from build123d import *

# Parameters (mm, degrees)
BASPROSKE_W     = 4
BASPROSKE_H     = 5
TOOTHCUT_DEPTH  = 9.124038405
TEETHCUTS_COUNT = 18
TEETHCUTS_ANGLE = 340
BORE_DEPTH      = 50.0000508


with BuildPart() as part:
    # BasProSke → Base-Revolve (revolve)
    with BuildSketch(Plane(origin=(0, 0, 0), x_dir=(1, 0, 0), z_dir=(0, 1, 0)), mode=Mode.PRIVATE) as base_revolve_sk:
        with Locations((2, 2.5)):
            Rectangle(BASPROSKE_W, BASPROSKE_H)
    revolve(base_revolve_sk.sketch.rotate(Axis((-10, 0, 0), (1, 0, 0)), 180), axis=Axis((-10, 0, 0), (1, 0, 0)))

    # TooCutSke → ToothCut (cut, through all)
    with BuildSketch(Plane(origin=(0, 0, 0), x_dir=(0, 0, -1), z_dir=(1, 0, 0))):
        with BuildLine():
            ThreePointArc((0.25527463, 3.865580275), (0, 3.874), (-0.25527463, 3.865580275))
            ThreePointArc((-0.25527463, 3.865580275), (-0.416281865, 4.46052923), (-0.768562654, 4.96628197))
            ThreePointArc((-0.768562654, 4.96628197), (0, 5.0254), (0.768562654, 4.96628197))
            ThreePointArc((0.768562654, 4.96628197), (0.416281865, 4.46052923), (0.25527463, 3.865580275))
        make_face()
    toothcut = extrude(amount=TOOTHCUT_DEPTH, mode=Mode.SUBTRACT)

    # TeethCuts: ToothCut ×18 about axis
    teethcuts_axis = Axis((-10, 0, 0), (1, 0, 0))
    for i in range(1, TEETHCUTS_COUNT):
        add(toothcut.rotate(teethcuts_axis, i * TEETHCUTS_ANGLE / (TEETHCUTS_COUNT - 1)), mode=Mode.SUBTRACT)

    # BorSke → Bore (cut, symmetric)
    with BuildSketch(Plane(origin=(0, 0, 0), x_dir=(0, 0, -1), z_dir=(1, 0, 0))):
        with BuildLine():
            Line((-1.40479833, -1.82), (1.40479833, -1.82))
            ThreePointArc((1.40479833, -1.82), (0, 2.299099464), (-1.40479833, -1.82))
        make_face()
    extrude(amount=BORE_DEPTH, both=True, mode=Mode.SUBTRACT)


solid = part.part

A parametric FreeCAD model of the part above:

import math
import FreeCAD as App
import Part
import Sketcher

V = App.Vector
Q = App.Units.Quantity

doc = App.newDocument("Part")
params = doc.addObject("Spreadsheet::Sheet", "Params")
for row, (alias, value) in enumerate([
    ("sketch1_width", "4 mm"),
    ("sketch1_height", "5 mm"),
    ("revolution_angle", "360 deg"),
    ("sketch2_radius", "1.8 mm"),
    ("pocket2_length", "100.000102 mm"),
], start=1):
    params.set(f"A{row}", alias)
    params.set(f"B{row}", "=" + value)
    params.setAlias(f"B{row}", alias)

body = doc.addObject("PartDesign::Body", "Body")

# Sketch on XZ plane
sketch1 = body.newObject("Sketcher::SketchObject", "Sketch")
sketch1.AttachmentSupport = (doc.getObject("XZ_Plane"), [""])
sketch1.MapMode = "FlatFace"
sketch1.addGeometry([
    Part.LineSegment(V(0, -5, 0), V(0, 0, 0)),
    Part.LineSegment(V(0, 0, 0), V(4, 0, 0)),
    Part.LineSegment(V(4, 0, 0), V(4, -5, 0)),
    Part.LineSegment(V(4, -5, 0), V(0, -5, 0)),
], False)
sketch1.addConstraint([
    Sketcher.Constraint("Coincident", 0, 2, 1, 1),
    Sketcher.Constraint("Coincident", 1, 2, 2, 1),
    Sketcher.Constraint("Coincident", 2, 2, 3, 1),
    Sketcher.Constraint("Coincident", 3, 2, 0, 1),
    Sketcher.Constraint("Vertical", 0),
    Sketcher.Constraint("Horizontal", 1),
    Sketcher.Constraint("Vertical", 2),
    Sketcher.Constraint("Horizontal", 3),
    Sketcher.Constraint("Coincident", 0, 2, -1, 1),
    Sketcher.Constraint("DistanceX", 1, 1, 1, 2, Q("4 mm")),
    Sketcher.Constraint("DistanceY", 0, 1, 0, 2, Q("5 mm")),
])
sketch1.setExpression("Constraints[9]", "Params.sketch1_width")
sketch1.setExpression("Constraints[10]", "Params.sketch1_height")
revolution = body.newObject("PartDesign::Revolution", "Revolution")
revolution.Profile = sketch1
revolution.ReferenceAxis = (sketch1, ["H_Axis"])
revolution.setExpression("Angle", "Params.revolution_angle")

# Sketch on YZ plane
sketch2 = body.newObject("Sketcher::SketchObject", "Sketch001")
sketch2.AttachmentSupport = (doc.getObject("YZ_Plane"), [""])
sketch2.MapMode = "FlatFace"
sketch2.addGeometry([
    Part.ArcOfCircle(Part.Circle(V(0, 0, 0), V(0, 0, 1), 3.9), math.radians(-3.78), math.radians(3.78)),
    Part.ArcOfCircle(Part.Circle(V(3.7, -2, 0), V(0, 0, 1), 1.8), math.radians(45), math.radians(85)),
    Part.ArcOfCircle(Part.Circle(V(0, 0, 0), V(0, 0, 1), 5), math.radians(-8.8), math.radians(8.8)),
    Part.ArcOfCircle(Part.Circle(V(3.7, 2, 0), V(0, 0, 1), 1.8), math.radians(-85), math.radians(-45)),
], False)
sketch2.addConstraint([
    Sketcher.Constraint("Coincident", 0, 1, 1, 2),
    Sketcher.Constraint("Coincident", 1, 1, 2, 1),
    Sketcher.Constraint("Coincident", 2, 2, 3, 2),
    Sketcher.Constraint("Coincident", 3, 1, 0, 2),
    Sketcher.Constraint("Coincident", 0, 3, -1, 1),
    Sketcher.Constraint("Coincident", 2, 3, -1, 1),
    Sketcher.Constraint("Equal", 1, 3),
    Sketcher.Constraint("Symmetric", 1, 3, 3, 3, -1),
    Sketcher.Constraint("Radius", 1, Q("1.8 mm")),
    Sketcher.Constraint("Radius", 0, Q("3.874 mm")),
    Sketcher.Constraint("Radius", 2, Q("5.0254 mm")),
    Sketcher.Constraint("DistanceX", 0, 1, 1, 1, Q("1.100702 mm")),
    Sketcher.Constraint("DistanceX", -1, 1, 1, 3, Q("3.699789 mm")),
])
sketch2.setExpression("Constraints[8]", "Params.sketch2_radius")
pocket1 = body.newObject("PartDesign::Pocket", "Pocket")
pocket1.Profile = sketch2
pocket1.Type = "ThroughAll"
pocket1.Reversed = True
doc.recompute()

polarpattern = body.newObject("PartDesign::PolarPattern", "PolarPattern")
polarpattern.Originals = [pocket1]
polarpattern.Axis = (doc.getObject("X_Axis"), [""])
polarpattern.Angle = 360
polarpattern.Occurrences = 18
body.Tip = polarpattern

# Sketch on YZ plane
sketch3 = body.newObject("Sketcher::SketchObject", "Sketch002")
sketch3.AttachmentSupport = (doc.getObject("YZ_Plane"), [""])
sketch3.MapMode = "FlatFace"
sketch3.addGeometry([
    Part.LineSegment(V(-1.8, 1.4, 0), V(-1.8, -1.4, 0)),
    Part.ArcOfCircle(Part.Circle(V(0, 0, 0), V(0, 0, 1), 2.3), math.radians(-142), math.radians(142)),
], False)
sketch3.addConstraint([
    Sketcher.Constraint("Coincident", 0, 1, 1, 2),
    Sketcher.Constraint("Coincident", 1, 1, 0, 2),
    Sketcher.Constraint("Vertical", 0),
    Sketcher.Constraint("Coincident", 1, 3, -1, 1),
    Sketcher.Constraint("Radius", 1, Q("2.299099 mm")),
    Sketcher.Constraint("DistanceX", 0, 1, -1, 1, Q("1.82 mm")),
])
pocket2 = body.newObject("PartDesign::Pocket", "Pocket001")
pocket2.Profile = sketch3
pocket2.setExpression("Length", "Params.pocket2_length")
pocket2.Midplane = True

doc.recompute()
